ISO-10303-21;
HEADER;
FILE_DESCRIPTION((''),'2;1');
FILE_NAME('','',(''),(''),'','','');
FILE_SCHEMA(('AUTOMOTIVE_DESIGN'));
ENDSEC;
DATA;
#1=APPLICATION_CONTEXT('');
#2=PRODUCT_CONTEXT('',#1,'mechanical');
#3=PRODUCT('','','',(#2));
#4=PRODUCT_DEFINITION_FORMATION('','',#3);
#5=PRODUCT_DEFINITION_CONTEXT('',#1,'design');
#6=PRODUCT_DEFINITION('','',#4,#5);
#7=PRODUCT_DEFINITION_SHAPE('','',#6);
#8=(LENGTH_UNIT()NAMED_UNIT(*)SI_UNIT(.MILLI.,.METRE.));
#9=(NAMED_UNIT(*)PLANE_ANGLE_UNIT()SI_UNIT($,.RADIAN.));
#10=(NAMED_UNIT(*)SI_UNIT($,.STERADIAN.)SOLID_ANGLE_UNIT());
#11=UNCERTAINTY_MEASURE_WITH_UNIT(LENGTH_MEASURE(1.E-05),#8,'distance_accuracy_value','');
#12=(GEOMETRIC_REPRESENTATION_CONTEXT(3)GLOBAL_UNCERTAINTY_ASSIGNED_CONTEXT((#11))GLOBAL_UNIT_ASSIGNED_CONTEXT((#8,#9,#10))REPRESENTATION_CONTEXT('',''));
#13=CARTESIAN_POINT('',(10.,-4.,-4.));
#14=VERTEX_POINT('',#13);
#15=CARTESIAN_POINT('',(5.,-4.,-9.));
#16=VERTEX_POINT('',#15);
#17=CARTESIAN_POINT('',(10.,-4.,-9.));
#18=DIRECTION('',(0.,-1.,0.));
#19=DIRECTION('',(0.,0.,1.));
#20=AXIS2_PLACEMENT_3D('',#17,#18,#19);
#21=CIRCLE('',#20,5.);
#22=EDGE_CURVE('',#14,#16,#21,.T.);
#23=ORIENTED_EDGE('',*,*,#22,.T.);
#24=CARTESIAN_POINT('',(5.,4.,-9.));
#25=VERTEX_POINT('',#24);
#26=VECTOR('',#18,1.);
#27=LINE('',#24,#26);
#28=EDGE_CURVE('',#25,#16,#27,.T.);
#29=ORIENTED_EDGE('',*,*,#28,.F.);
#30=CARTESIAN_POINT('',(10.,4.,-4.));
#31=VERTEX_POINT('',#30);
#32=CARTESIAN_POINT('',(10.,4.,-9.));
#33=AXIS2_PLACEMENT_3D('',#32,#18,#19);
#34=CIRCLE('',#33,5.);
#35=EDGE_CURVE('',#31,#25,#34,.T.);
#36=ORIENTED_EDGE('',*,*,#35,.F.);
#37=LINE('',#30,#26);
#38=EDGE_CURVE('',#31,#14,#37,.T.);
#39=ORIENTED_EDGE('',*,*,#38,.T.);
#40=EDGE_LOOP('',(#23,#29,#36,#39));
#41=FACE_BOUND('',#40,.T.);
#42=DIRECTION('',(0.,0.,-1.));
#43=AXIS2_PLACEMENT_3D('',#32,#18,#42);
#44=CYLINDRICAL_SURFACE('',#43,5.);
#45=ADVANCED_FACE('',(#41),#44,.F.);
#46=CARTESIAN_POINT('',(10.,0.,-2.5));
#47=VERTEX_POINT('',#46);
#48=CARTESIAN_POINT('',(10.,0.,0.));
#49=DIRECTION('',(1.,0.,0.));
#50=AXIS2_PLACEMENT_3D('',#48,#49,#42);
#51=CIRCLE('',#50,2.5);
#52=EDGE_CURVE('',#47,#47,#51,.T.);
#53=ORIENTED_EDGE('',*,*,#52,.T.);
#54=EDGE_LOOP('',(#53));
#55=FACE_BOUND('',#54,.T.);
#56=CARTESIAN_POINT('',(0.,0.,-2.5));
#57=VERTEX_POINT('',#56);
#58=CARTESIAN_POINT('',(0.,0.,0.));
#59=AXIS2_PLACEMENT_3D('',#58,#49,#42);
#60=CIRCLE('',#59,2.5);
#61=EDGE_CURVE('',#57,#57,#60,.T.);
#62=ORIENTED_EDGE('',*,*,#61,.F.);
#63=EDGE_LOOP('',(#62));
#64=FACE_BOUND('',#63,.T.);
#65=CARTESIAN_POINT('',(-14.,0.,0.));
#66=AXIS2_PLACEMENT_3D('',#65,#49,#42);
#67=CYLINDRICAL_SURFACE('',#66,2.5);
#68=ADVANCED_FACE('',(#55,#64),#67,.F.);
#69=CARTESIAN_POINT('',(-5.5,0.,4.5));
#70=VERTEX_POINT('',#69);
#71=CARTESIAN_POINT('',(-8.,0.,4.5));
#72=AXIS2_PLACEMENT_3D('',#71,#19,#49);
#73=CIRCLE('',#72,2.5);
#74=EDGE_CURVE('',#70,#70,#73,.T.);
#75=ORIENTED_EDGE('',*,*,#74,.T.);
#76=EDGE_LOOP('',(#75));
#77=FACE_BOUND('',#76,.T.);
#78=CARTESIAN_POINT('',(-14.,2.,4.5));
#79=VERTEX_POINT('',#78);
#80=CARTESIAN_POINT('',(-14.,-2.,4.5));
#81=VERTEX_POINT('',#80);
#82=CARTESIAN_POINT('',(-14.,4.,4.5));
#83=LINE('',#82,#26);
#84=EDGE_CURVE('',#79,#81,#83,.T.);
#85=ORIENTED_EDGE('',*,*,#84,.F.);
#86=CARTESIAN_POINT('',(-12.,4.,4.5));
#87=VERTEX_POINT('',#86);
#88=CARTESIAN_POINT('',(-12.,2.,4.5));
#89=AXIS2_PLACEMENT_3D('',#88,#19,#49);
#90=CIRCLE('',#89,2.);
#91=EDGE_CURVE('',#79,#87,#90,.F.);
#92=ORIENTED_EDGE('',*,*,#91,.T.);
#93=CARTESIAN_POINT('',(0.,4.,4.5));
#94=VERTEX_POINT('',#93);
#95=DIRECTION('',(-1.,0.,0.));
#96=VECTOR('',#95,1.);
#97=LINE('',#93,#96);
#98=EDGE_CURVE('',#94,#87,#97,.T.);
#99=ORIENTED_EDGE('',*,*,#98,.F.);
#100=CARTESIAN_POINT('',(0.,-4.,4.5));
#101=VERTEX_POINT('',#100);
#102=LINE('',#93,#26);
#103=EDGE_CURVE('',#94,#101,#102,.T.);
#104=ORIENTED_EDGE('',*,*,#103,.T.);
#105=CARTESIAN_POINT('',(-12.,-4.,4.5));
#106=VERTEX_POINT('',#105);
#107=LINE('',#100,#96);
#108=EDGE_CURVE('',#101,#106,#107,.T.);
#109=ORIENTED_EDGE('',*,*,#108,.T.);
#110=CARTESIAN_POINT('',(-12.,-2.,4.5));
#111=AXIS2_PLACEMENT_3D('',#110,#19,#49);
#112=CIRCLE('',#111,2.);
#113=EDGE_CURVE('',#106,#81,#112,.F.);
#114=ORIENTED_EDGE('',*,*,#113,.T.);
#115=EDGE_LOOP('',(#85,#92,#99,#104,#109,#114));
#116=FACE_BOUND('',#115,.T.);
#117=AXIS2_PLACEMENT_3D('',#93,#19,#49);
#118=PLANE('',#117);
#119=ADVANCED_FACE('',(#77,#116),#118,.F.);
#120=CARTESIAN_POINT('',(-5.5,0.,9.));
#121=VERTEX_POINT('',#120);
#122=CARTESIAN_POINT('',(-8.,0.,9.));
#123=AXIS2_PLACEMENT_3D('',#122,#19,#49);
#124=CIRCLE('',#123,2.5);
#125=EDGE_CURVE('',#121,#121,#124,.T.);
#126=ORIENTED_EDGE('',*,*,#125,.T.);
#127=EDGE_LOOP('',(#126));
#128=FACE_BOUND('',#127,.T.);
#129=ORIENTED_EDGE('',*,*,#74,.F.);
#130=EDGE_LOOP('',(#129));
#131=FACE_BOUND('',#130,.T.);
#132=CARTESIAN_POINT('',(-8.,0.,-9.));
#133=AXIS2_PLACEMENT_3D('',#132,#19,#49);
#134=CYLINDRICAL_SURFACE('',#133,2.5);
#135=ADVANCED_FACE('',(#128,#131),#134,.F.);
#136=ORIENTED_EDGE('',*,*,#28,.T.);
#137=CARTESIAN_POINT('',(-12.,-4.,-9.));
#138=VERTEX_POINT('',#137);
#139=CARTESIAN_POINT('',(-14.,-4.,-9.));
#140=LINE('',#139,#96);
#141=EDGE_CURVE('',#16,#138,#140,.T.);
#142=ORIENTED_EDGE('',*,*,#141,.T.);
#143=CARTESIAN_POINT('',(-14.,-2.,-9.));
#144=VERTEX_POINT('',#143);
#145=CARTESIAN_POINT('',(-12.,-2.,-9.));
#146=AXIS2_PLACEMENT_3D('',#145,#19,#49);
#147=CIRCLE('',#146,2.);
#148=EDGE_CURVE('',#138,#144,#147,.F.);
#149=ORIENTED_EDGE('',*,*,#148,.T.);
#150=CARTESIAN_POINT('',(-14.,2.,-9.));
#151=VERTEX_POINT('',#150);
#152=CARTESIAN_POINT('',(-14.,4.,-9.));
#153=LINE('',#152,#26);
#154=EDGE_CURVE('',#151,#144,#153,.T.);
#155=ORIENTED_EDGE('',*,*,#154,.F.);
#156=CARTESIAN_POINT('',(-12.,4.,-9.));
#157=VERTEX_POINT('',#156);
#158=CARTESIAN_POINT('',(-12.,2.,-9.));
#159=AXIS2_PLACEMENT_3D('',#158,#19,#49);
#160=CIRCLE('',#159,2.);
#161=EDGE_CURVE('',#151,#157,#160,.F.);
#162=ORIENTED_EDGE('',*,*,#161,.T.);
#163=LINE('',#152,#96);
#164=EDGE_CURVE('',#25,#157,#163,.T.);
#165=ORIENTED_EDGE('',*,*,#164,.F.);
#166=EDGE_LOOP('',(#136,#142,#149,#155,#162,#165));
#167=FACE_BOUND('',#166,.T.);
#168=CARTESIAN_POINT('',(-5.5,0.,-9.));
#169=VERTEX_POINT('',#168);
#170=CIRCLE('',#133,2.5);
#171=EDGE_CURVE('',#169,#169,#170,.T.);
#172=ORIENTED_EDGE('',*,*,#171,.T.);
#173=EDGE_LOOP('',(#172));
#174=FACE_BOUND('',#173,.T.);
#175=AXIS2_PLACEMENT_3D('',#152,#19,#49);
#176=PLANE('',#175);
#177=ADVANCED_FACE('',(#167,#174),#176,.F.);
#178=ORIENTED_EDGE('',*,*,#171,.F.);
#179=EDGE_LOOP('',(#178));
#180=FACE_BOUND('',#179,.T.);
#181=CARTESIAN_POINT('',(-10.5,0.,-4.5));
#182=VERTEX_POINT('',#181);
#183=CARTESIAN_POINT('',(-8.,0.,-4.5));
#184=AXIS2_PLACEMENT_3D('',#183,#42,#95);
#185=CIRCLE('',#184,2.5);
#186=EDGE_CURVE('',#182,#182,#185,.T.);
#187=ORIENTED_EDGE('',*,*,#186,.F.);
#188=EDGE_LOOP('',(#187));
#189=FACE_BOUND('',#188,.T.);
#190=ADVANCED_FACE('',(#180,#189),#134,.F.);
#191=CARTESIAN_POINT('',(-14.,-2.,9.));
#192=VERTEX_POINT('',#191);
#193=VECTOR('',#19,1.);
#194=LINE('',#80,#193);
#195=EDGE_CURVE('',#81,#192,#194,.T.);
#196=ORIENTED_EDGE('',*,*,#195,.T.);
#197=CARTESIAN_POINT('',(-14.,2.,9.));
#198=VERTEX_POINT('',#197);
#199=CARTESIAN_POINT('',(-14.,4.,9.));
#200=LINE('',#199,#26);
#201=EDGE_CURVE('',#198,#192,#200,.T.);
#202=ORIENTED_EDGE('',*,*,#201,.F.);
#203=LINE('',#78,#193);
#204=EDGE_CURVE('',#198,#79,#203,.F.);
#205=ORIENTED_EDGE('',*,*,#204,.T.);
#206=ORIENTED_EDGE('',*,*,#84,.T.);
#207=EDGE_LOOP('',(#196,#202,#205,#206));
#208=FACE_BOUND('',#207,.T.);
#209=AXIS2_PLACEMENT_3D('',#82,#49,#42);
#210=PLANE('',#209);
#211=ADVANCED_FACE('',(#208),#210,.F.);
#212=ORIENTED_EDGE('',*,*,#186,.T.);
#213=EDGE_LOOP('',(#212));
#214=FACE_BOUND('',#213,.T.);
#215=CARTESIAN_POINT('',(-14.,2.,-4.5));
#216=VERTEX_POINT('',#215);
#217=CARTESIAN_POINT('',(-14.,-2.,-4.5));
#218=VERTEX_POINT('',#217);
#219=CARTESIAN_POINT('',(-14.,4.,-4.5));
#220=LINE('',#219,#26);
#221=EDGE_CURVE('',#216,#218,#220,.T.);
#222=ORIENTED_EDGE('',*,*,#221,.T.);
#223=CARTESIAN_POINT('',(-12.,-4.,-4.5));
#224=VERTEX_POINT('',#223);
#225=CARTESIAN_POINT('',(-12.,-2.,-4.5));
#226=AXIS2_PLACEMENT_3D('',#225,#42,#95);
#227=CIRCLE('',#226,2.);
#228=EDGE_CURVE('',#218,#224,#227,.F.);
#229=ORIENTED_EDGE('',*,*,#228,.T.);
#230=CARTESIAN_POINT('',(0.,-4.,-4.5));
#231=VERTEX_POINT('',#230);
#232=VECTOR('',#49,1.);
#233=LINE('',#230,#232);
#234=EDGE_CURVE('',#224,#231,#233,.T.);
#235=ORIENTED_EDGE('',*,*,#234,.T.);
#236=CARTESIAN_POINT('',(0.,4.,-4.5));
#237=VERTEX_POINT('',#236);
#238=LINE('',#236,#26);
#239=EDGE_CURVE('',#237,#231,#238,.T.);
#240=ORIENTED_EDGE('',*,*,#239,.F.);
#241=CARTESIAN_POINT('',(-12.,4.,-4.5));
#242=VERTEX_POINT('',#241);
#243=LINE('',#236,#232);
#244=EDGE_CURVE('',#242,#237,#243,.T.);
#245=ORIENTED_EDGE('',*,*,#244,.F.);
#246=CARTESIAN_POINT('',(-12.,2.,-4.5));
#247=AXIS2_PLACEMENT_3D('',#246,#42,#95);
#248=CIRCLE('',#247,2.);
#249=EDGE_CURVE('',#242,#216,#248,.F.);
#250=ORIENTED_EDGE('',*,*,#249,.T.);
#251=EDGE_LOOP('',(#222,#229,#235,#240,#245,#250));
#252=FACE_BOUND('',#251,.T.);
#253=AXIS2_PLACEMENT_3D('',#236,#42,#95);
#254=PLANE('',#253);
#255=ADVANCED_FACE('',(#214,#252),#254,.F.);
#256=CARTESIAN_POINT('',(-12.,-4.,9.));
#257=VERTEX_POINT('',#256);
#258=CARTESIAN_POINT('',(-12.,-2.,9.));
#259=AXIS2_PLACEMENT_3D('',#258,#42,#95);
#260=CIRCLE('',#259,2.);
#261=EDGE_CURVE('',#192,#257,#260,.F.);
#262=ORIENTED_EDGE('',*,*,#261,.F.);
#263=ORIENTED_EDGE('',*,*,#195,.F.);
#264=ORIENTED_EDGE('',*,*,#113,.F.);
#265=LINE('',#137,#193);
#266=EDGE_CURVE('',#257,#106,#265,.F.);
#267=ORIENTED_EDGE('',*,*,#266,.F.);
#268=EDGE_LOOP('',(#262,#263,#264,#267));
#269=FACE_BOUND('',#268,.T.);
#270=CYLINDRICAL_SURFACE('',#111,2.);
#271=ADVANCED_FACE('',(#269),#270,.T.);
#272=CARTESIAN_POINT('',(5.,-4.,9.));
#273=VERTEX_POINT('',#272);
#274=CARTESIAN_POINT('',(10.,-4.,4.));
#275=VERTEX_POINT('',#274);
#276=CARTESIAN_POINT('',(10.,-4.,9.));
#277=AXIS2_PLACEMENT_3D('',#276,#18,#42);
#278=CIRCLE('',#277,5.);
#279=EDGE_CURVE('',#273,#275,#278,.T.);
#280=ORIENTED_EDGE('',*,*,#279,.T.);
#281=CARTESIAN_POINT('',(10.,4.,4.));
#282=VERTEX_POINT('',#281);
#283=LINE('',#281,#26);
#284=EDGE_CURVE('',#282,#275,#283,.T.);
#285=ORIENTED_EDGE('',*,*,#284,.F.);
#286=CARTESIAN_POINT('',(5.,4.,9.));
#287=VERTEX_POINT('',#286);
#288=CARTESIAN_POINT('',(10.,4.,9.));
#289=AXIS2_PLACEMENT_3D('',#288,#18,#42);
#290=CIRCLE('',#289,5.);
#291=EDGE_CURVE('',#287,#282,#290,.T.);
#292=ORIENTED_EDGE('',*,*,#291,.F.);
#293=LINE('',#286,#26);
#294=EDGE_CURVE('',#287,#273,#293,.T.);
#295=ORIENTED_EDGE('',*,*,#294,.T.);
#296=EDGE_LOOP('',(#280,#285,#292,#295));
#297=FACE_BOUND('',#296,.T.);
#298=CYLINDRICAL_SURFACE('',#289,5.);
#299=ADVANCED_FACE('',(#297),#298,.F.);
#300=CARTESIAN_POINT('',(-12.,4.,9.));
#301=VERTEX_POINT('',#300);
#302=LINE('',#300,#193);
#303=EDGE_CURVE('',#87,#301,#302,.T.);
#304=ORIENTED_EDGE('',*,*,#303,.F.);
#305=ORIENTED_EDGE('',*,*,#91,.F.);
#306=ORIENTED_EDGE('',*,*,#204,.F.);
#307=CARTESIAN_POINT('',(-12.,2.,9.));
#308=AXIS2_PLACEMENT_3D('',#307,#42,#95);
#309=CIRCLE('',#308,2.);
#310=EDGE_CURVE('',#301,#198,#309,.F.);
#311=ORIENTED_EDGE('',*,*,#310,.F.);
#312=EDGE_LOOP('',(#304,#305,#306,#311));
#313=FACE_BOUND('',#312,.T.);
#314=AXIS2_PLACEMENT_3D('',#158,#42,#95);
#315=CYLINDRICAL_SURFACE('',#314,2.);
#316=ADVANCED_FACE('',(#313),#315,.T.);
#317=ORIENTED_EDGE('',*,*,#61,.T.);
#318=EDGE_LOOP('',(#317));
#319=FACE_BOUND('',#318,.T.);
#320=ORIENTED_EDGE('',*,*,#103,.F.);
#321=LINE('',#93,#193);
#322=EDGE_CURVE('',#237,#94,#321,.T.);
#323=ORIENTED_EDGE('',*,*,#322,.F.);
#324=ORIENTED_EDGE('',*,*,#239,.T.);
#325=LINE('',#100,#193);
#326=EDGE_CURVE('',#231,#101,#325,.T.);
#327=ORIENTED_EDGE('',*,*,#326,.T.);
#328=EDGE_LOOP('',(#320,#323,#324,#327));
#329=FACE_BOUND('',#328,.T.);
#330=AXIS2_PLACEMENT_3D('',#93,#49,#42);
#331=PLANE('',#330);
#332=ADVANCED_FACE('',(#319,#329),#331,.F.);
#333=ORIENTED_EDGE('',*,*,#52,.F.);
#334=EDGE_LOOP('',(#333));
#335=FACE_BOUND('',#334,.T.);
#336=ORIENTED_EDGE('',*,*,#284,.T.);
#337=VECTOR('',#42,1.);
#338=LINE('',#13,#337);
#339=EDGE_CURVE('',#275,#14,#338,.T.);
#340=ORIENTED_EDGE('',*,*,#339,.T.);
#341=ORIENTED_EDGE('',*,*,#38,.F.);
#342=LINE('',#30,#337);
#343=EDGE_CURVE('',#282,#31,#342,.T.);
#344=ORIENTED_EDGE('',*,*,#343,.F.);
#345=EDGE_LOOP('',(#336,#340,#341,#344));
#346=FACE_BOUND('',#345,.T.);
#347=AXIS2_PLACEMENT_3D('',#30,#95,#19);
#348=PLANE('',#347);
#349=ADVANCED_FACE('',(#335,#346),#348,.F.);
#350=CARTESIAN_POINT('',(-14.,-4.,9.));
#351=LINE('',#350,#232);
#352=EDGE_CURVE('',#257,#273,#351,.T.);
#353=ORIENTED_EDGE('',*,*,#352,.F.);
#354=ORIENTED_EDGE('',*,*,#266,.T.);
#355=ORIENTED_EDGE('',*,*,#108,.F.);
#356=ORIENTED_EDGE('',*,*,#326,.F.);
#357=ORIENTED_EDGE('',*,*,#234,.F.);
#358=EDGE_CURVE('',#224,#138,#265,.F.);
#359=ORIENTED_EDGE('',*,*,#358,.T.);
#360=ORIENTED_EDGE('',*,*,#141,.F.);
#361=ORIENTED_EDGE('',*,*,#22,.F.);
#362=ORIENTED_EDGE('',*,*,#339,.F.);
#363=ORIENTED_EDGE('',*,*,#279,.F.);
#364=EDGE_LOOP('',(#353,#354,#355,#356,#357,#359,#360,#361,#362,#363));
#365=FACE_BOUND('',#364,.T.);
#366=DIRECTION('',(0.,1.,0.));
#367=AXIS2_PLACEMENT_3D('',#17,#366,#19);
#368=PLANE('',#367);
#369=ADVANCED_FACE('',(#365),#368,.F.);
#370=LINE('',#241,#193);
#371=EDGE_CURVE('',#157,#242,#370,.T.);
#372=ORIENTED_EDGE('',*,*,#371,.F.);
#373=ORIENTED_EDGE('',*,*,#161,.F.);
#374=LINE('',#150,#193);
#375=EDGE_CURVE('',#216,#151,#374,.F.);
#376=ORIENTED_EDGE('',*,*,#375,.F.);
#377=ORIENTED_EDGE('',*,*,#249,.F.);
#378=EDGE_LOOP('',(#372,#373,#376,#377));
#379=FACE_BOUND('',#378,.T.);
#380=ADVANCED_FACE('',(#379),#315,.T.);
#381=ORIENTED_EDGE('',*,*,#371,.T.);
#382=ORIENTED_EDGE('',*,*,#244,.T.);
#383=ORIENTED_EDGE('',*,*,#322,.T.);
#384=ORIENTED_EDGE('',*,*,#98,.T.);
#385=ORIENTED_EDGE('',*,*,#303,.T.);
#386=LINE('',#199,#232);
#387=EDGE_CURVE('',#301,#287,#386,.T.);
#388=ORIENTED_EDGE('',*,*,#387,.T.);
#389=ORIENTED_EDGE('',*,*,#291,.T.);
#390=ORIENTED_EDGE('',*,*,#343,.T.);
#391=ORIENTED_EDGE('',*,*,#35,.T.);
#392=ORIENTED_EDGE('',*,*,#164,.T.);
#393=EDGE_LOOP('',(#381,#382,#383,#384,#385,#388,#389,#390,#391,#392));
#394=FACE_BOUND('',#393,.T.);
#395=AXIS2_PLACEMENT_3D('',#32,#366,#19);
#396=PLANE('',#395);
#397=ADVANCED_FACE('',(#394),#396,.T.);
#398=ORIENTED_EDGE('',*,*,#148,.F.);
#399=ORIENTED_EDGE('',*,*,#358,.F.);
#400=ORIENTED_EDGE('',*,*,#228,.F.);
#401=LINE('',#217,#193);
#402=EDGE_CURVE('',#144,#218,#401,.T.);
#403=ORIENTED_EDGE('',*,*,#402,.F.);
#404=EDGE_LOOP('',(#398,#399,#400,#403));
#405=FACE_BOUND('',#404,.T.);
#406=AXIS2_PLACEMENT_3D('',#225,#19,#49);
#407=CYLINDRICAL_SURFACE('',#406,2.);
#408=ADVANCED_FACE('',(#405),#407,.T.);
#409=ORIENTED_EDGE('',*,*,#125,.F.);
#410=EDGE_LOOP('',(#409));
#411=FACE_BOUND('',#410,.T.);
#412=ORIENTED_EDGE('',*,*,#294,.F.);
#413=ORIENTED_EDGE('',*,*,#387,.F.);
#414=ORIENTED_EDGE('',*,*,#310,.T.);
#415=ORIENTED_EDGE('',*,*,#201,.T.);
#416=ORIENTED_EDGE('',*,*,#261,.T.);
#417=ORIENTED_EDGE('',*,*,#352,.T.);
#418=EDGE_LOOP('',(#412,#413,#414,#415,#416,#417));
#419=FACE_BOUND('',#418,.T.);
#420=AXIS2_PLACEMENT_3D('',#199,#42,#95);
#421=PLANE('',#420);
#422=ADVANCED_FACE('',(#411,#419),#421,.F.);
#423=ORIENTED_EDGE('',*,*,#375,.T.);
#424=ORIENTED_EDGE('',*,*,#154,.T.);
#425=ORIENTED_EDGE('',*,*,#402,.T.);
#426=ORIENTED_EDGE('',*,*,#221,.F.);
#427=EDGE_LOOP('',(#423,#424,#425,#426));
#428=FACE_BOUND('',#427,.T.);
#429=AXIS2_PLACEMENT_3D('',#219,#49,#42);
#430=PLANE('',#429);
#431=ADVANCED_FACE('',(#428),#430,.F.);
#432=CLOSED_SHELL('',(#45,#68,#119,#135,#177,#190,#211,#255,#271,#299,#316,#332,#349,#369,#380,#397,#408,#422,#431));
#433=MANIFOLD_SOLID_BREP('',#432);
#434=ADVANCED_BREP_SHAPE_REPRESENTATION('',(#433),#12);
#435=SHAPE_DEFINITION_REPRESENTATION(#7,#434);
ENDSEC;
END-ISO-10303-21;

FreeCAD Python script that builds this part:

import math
import FreeCAD as App
import Part
import Sketcher

V = App.Vector
Q = App.Units.Quantity


def edges_at(feature, points):
    """Names of the edges that pass closest to the given points."""
    edges = feature.Shape.Edges
    near = lambda p: min(range(len(edges)), key=lambda i: edges[i].distToShape(Part.Vertex(*p))[0])
    return sorted({f"Edge{near(p) + 1}" for p in points})

doc = App.newDocument("Part")
body = doc.addObject("PartDesign::Body", "Body")

# Sketch on XZ plane
sketch1 = body.newObject("Sketcher::SketchObject", "Sketch")
sketch1.AttachmentSupport = (doc.getObject("XZ_Plane"), [""])
sketch1.MapMode = "FlatFace"
sketch1.addGeometry(Part.LineSegment(V(-14, -4.5, 0), V(0, -4.5, 0)), False)
sketch1.addGeometry(Part.LineSegment(V(0, -4.5, 0), V(0, 4.5, 0)), False)
sketch1.addGeometry(Part.LineSegment(V(0, 4.5, 0), V(-14, 4.5, 0)), False)
sketch1.addGeometry(Part.LineSegment(V(-14, 4.5, 0), V(-14, 9, 0)), False)
sketch1.addGeometry(Part.LineSegment(V(-14, 9, 0), V(5, 9, 0)), False)
sketch1.addGeometry(Part.ArcOfCircle(Part.Circle(V(10, 9, 0), V(0, 0, 1), 5), math.radians(180), math.radians(270)), False)
sketch1.addGeometry(Part.LineSegment(V(10, 4, 0), V(10, -4, 0)), False)
sketch1.addGeometry(Part.ArcOfCircle(Part.Circle(V(10, -9, 0), V(0, 0, 1), 5), math.radians(90), math.radians(180)), False)
sketch1.addGeometry(Part.LineSegment(V(5, -9, 0), V(-14, -9, 0)), False)
sketch1.addGeometry(Part.LineSegment(V(-14, -9, 0), V(-14, -4.5, 0)), False)
sketch1.addConstraint(Sketcher.Constraint("Coincident", 0, 2, 1, 1))
sketch1.addConstraint(Sketcher.Constraint("Coincident", 1, 2, 2, 1))
sketch1.addConstraint(Sketcher.Constraint("Coincident", 2, 2, 3, 1))
sketch1.addConstraint(Sketcher.Constraint("Coincident", 3, 2, 4, 1))
sketch1.addConstraint(Sketcher.Constraint("Coincident", 4, 2, 5, 1))
sketch1.addConstraint(Sketcher.Constraint("Coincident", 5, 2, 6, 1))
sketch1.addConstraint(Sketcher.Constraint("Coincident", 6, 2, 7, 1))
sketch1.addConstraint(Sketcher.Constraint("Coincident", 7, 2, 8, 1))
sketch1.addConstraint(Sketcher.Constraint("Coincident", 8, 2, 9, 1))
sketch1.addConstraint(Sketcher.Constraint("Coincident", 9, 2, 0, 1))
sketch1.addConstraint(Sketcher.Constraint("Horizontal", 0))
sketch1.addConstraint(Sketcher.Constraint("Vertical", 1))
sketch1.addConstraint(Sketcher.Constraint("Horizontal", 2))
sketch1.addConstraint(Sketcher.Constraint("Vertical", 3))
sketch1.addConstraint(Sketcher.Constraint("Horizontal", 4))
sketch1.addConstraint(Sketcher.Constraint("Vertical", 6))
sketch1.addConstraint(Sketcher.Constraint("Horizontal", 8))
sketch1.addConstraint(Sketcher.Constraint("Vertical", 9))
sketch1.addConstraint(Sketcher.Constraint("Equal", 5, 7))
sketch1.addConstraint(Sketcher.Constraint("Symmetric", 0, 2, 1, 2, -1, 1))
sketch1.addConstraint(Sketcher.Constraint("Symmetric", 5, 3, 7, 3, -1))
sketch1.addConstraint(Sketcher.Constraint("Symmetric", 3, 2, 8, 2, -1))
sketch1.addConstraint(Sketcher.Constraint("Horizontal", 5, 3, 3, 2))
sketch1.addConstraint(Sketcher.Constraint("Vertical", 7, 3, 5, 2))
sketch1.addConstraint(Sketcher.Constraint("Radius", 5, Q("5 mm")))
sketch1.addConstraint(Sketcher.Constraint("DistanceX", 0, 1, 0, 2, Q("14 mm")))
sketch1.addConstraint(Sketcher.Constraint("DistanceX", 4, 1, 4, 2, Q("19 mm")))
sketch1.addConstraint(Sketcher.Constraint("DistanceY", 1, 1, 1, 2, Q("9 mm")))
sketch1.addConstraint(Sketcher.Constraint("DistanceY", 6, 2, 6, 1, Q("8 mm")))
pad1 = body.newObject("PartDesign::Pad", "Pad")
pad1.Profile = sketch1
pad1.Length = 8
pad1.Midplane = True

# Sketch on YZ plane
sketch2 = body.newObject("Sketcher::SketchObject", "Sketch001")
sketch2.AttachmentSupport = (doc.getObject("YZ_Plane"), [""])
sketch2.MapMode = "FlatFace"
sketch2.AttachmentOffset = App.Placement(V(0, 0, 10), App.Rotation())
sketch2.addGeometry(Part.Circle(V(0, 0, 0), V(0, 0, 1), 2.5), False)
sketch2.addConstraint(Sketcher.Constraint("Coincident", 0, 3, -1, 1))
sketch2.addConstraint(Sketcher.Constraint("Diameter", 0, Q("5 mm")))
pocket1 = body.newObject("PartDesign::Pocket", "Pocket")
pocket1.Profile = sketch2
pocket1.Type = "ThroughAll"

# Sketch on XY plane
sketch3 = body.newObject("Sketcher::SketchObject", "Sketch002")
sketch3.AttachmentSupport = (doc.getObject("XY_Plane"), [""])
sketch3.MapMode = "FlatFace"
sketch3.addGeometry(Part.Circle(V(-8, 0, 0), V(0, 0, 1), 2.5), False)
sketch3.addConstraint(Sketcher.Constraint("PointOnObject", 0, 3, -1))
sketch3.addConstraint(Sketcher.Constraint("Diameter", 0, Q("5 mm")))
sketch3.addConstraint(Sketcher.Constraint("DistanceX", 0, 3, -1, 1, Q("8 mm")))
pocket2 = body.newObject("PartDesign::Pocket", "Pocket001")
pocket2.Profile = sketch3
pocket2.Type = "ThroughAll"
pocket2.Midplane = True
doc.recompute()

fillet = body.newObject("PartDesign::Fillet", "Fillet")
fillet.Base = (pocket2, edges_at(pocket2, [
    (-14, -4, -6.75),
    (-14, 4, 6.75),
    (-14, -4, 6.75),
    (-14, 4, -6.75),
]))
fillet.Radius = 2

doc.recompute()
